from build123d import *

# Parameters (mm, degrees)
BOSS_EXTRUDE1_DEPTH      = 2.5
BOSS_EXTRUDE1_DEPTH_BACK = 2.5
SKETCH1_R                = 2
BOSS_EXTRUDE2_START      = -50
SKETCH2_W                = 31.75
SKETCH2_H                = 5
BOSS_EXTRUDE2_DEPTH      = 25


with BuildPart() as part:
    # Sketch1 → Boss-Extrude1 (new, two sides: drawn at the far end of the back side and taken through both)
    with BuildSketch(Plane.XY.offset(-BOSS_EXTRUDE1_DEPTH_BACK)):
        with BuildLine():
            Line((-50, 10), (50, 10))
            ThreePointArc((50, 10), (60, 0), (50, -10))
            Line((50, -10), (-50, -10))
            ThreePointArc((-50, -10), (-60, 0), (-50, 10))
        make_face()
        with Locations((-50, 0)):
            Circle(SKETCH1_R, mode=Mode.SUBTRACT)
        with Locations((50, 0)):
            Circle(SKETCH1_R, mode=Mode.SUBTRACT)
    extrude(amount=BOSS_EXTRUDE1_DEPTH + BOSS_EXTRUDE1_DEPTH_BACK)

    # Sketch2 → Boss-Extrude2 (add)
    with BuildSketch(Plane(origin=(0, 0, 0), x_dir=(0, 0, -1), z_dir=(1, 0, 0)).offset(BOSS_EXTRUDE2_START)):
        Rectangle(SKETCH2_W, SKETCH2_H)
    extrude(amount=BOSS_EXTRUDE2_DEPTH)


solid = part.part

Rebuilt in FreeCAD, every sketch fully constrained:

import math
import FreeCAD as App
import Part
import Sketcher
from FreeCAD import Vector


def add_polygon(sketch, points):
    """Adds a closed chain of lines whose ends are joined by coincident constraints."""
    first, n = sketch.GeometryCount, len(points)
    for a, b in zip(points, points[1:] + points[:1]):
        sketch.addGeometry(Part.LineSegment(App.Vector(*a, 0), App.Vector(*b, 0)), False)
    for i in range(n):
        sketch.addConstraint(Sketcher.Constraint("Coincident", first + i, 2, first + (i + 1) % n, 1))

doc = App.newDocument("Part")
params = doc.addObject("Spreadsheet::Sheet", "Params")
for row, (alias, value) in enumerate([
    ("sketch1_diameter", "4 mm"),
    ("sketch1_radius", "10 mm"),
    ("sketch1_width", "100 mm"),
    ("pad1_length", "2.5 mm"),
    ("pad1_length2", "2.5 mm"),
    ("sketch2_width", "5 mm"),
    ("sketch2_height", "31.75 mm"),
    ("pad2_length", "25 mm"),
], start=1):
    params.set(f"A{row}", alias)
    params.set(f"B{row}", "=" + value)
    params.setAlias(f"B{row}", alias)

body = doc.addObject("PartDesign::Body", "Body")

# Sketch on XY plane
sketch1 = body.newObject("Sketcher::SketchObject", "Sketch")
sketch1.AttachmentSupport = (doc.getObject("XY_Plane"), [""])
sketch1.MapMode = "FlatFace"
sketch1.addGeometry(Part.LineSegment(Vector(50, 10, 0), Vector(-50, 10, 0)), False)
sketch1.addGeometry(Part.ArcOfCircle(Part.Circle(Vector(-50, 0, 0), Vector(0, 0, 1), 10), math.radians(90), math.radians(270)), False)
sketch1.addGeometry(Part.LineSegment(Vector(-50, -10, 0), Vector(50, -10, 0)), False)
sketch1.addGeometry(Part.ArcOfCircle(Part.Circle(Vector(50, 0, 0), Vector(0, 0, 1), 10), math.radians(-90), math.radians(90)), False)
sketch1.addGeometry(Part.Circle(Vector(50, 0, 0), Vector(0, 0, 1), 2), False)
sketch1.addGeometry(Part.Circle(Vector(-50, 0, 0), Vector(0, 0, 1), 2), False)
sketch1.addConstraint(Sketcher.Constraint("Tangent", 0, 2, 1, 1))
sketch1.addConstraint(Sketcher.Constraint("Tangent", 1, 2, 2, 1))
sketch1.addConstraint(Sketcher.Constraint("Tangent", 2, 2, 3, 1))
sketch1.addConstraint(Sketcher.Constraint("Tangent", 3, 2, 0, 1))
sketch1.addConstraint(Sketcher.Constraint("Horizontal", 0))
sketch1.addConstraint(Sketcher.Constraint("Horizontal", 2))
sketch1.addConstraint(Sketcher.Constraint("Coincident", 4, 3, 3, 3))
sketch1.addConstraint(Sketcher.Constraint("Coincident", 5, 3, 1, 3))
sketch1.addConstraint(Sketcher.Constraint("Equal", 4, 5))
sketch1.addConstraint(Sketcher.Constraint("Symmetric", 1, 3, 3, 3, -1, 1))
sketch1.addConstraint(Sketcher.Constraint("Diameter", 4, 4.0))
sketch1.addConstraint(Sketcher.Constraint("Radius", 1, 10.0))
sketch1.addConstraint(Sketcher.Constraint("DistanceX", 0, 2, 0, 1, 100.0))
sketch1.setExpression("Constraints[10]", "Params.sketch1_diameter")
sketch1.setExpression("Constraints[11]", "Params.sketch1_radius")
sketch1.setExpression("Constraints[12]", "Params.sketch1_width")
pad1 = body.newObject("PartDesign::Pad", "Pad")
pad1.Profile = sketch1
pad1.Type = "TwoLengths"
pad1.setExpression("Length", "Params.pad1_length")
pad1.setExpression("Length2", "Params.pad1_length2")

# Sketch on YZ plane
sketch2 = body.newObject("Sketcher::SketchObject", "Sketch001")
sketch2.AttachmentSupport = (doc.getObject("YZ_Plane"), [""])
sketch2.MapMode = "FlatFace"
sketch2.AttachmentOffset = App.Placement(Vector(0, 0, -50), App.Rotation())
add_polygon(sketch2, [(2, 16), (-2, 16), (-2, -16), (2, -16)])  # lines 0-3
sketch2.addConstraint(Sketcher.Constraint("Horizontal", 0))
sketch2.addConstraint(Sketcher.Constraint("Vertical", 1))
sketch2.addConstraint(Sketcher.Constraint("Horizontal", 2))
sketch2.addConstraint(Sketcher.Constraint("Vertical", 3))
sketch2.addConstraint(Sketcher.Constraint("Symmetric", 0, 2, 2, 2, -1, 1))
sketch2.addConstraint(Sketcher.Constraint("DistanceX", 0, 2, 0, 1, 5.0))
sketch2.addConstraint(Sketcher.Constraint("DistanceY", 1, 2, 1, 1, 31.75))
sketch2.setExpression("Constraints[9]", "Params.sketch2_width")
sketch2.setExpression("Constraints[10]", "Params.sketch2_height")
pad2 = body.newObject("PartDesign::Pad", "Pad001")
pad2.Profile = sketch2
pad2.setExpression("Length", "Params.pad2_length")

doc.recompute()
